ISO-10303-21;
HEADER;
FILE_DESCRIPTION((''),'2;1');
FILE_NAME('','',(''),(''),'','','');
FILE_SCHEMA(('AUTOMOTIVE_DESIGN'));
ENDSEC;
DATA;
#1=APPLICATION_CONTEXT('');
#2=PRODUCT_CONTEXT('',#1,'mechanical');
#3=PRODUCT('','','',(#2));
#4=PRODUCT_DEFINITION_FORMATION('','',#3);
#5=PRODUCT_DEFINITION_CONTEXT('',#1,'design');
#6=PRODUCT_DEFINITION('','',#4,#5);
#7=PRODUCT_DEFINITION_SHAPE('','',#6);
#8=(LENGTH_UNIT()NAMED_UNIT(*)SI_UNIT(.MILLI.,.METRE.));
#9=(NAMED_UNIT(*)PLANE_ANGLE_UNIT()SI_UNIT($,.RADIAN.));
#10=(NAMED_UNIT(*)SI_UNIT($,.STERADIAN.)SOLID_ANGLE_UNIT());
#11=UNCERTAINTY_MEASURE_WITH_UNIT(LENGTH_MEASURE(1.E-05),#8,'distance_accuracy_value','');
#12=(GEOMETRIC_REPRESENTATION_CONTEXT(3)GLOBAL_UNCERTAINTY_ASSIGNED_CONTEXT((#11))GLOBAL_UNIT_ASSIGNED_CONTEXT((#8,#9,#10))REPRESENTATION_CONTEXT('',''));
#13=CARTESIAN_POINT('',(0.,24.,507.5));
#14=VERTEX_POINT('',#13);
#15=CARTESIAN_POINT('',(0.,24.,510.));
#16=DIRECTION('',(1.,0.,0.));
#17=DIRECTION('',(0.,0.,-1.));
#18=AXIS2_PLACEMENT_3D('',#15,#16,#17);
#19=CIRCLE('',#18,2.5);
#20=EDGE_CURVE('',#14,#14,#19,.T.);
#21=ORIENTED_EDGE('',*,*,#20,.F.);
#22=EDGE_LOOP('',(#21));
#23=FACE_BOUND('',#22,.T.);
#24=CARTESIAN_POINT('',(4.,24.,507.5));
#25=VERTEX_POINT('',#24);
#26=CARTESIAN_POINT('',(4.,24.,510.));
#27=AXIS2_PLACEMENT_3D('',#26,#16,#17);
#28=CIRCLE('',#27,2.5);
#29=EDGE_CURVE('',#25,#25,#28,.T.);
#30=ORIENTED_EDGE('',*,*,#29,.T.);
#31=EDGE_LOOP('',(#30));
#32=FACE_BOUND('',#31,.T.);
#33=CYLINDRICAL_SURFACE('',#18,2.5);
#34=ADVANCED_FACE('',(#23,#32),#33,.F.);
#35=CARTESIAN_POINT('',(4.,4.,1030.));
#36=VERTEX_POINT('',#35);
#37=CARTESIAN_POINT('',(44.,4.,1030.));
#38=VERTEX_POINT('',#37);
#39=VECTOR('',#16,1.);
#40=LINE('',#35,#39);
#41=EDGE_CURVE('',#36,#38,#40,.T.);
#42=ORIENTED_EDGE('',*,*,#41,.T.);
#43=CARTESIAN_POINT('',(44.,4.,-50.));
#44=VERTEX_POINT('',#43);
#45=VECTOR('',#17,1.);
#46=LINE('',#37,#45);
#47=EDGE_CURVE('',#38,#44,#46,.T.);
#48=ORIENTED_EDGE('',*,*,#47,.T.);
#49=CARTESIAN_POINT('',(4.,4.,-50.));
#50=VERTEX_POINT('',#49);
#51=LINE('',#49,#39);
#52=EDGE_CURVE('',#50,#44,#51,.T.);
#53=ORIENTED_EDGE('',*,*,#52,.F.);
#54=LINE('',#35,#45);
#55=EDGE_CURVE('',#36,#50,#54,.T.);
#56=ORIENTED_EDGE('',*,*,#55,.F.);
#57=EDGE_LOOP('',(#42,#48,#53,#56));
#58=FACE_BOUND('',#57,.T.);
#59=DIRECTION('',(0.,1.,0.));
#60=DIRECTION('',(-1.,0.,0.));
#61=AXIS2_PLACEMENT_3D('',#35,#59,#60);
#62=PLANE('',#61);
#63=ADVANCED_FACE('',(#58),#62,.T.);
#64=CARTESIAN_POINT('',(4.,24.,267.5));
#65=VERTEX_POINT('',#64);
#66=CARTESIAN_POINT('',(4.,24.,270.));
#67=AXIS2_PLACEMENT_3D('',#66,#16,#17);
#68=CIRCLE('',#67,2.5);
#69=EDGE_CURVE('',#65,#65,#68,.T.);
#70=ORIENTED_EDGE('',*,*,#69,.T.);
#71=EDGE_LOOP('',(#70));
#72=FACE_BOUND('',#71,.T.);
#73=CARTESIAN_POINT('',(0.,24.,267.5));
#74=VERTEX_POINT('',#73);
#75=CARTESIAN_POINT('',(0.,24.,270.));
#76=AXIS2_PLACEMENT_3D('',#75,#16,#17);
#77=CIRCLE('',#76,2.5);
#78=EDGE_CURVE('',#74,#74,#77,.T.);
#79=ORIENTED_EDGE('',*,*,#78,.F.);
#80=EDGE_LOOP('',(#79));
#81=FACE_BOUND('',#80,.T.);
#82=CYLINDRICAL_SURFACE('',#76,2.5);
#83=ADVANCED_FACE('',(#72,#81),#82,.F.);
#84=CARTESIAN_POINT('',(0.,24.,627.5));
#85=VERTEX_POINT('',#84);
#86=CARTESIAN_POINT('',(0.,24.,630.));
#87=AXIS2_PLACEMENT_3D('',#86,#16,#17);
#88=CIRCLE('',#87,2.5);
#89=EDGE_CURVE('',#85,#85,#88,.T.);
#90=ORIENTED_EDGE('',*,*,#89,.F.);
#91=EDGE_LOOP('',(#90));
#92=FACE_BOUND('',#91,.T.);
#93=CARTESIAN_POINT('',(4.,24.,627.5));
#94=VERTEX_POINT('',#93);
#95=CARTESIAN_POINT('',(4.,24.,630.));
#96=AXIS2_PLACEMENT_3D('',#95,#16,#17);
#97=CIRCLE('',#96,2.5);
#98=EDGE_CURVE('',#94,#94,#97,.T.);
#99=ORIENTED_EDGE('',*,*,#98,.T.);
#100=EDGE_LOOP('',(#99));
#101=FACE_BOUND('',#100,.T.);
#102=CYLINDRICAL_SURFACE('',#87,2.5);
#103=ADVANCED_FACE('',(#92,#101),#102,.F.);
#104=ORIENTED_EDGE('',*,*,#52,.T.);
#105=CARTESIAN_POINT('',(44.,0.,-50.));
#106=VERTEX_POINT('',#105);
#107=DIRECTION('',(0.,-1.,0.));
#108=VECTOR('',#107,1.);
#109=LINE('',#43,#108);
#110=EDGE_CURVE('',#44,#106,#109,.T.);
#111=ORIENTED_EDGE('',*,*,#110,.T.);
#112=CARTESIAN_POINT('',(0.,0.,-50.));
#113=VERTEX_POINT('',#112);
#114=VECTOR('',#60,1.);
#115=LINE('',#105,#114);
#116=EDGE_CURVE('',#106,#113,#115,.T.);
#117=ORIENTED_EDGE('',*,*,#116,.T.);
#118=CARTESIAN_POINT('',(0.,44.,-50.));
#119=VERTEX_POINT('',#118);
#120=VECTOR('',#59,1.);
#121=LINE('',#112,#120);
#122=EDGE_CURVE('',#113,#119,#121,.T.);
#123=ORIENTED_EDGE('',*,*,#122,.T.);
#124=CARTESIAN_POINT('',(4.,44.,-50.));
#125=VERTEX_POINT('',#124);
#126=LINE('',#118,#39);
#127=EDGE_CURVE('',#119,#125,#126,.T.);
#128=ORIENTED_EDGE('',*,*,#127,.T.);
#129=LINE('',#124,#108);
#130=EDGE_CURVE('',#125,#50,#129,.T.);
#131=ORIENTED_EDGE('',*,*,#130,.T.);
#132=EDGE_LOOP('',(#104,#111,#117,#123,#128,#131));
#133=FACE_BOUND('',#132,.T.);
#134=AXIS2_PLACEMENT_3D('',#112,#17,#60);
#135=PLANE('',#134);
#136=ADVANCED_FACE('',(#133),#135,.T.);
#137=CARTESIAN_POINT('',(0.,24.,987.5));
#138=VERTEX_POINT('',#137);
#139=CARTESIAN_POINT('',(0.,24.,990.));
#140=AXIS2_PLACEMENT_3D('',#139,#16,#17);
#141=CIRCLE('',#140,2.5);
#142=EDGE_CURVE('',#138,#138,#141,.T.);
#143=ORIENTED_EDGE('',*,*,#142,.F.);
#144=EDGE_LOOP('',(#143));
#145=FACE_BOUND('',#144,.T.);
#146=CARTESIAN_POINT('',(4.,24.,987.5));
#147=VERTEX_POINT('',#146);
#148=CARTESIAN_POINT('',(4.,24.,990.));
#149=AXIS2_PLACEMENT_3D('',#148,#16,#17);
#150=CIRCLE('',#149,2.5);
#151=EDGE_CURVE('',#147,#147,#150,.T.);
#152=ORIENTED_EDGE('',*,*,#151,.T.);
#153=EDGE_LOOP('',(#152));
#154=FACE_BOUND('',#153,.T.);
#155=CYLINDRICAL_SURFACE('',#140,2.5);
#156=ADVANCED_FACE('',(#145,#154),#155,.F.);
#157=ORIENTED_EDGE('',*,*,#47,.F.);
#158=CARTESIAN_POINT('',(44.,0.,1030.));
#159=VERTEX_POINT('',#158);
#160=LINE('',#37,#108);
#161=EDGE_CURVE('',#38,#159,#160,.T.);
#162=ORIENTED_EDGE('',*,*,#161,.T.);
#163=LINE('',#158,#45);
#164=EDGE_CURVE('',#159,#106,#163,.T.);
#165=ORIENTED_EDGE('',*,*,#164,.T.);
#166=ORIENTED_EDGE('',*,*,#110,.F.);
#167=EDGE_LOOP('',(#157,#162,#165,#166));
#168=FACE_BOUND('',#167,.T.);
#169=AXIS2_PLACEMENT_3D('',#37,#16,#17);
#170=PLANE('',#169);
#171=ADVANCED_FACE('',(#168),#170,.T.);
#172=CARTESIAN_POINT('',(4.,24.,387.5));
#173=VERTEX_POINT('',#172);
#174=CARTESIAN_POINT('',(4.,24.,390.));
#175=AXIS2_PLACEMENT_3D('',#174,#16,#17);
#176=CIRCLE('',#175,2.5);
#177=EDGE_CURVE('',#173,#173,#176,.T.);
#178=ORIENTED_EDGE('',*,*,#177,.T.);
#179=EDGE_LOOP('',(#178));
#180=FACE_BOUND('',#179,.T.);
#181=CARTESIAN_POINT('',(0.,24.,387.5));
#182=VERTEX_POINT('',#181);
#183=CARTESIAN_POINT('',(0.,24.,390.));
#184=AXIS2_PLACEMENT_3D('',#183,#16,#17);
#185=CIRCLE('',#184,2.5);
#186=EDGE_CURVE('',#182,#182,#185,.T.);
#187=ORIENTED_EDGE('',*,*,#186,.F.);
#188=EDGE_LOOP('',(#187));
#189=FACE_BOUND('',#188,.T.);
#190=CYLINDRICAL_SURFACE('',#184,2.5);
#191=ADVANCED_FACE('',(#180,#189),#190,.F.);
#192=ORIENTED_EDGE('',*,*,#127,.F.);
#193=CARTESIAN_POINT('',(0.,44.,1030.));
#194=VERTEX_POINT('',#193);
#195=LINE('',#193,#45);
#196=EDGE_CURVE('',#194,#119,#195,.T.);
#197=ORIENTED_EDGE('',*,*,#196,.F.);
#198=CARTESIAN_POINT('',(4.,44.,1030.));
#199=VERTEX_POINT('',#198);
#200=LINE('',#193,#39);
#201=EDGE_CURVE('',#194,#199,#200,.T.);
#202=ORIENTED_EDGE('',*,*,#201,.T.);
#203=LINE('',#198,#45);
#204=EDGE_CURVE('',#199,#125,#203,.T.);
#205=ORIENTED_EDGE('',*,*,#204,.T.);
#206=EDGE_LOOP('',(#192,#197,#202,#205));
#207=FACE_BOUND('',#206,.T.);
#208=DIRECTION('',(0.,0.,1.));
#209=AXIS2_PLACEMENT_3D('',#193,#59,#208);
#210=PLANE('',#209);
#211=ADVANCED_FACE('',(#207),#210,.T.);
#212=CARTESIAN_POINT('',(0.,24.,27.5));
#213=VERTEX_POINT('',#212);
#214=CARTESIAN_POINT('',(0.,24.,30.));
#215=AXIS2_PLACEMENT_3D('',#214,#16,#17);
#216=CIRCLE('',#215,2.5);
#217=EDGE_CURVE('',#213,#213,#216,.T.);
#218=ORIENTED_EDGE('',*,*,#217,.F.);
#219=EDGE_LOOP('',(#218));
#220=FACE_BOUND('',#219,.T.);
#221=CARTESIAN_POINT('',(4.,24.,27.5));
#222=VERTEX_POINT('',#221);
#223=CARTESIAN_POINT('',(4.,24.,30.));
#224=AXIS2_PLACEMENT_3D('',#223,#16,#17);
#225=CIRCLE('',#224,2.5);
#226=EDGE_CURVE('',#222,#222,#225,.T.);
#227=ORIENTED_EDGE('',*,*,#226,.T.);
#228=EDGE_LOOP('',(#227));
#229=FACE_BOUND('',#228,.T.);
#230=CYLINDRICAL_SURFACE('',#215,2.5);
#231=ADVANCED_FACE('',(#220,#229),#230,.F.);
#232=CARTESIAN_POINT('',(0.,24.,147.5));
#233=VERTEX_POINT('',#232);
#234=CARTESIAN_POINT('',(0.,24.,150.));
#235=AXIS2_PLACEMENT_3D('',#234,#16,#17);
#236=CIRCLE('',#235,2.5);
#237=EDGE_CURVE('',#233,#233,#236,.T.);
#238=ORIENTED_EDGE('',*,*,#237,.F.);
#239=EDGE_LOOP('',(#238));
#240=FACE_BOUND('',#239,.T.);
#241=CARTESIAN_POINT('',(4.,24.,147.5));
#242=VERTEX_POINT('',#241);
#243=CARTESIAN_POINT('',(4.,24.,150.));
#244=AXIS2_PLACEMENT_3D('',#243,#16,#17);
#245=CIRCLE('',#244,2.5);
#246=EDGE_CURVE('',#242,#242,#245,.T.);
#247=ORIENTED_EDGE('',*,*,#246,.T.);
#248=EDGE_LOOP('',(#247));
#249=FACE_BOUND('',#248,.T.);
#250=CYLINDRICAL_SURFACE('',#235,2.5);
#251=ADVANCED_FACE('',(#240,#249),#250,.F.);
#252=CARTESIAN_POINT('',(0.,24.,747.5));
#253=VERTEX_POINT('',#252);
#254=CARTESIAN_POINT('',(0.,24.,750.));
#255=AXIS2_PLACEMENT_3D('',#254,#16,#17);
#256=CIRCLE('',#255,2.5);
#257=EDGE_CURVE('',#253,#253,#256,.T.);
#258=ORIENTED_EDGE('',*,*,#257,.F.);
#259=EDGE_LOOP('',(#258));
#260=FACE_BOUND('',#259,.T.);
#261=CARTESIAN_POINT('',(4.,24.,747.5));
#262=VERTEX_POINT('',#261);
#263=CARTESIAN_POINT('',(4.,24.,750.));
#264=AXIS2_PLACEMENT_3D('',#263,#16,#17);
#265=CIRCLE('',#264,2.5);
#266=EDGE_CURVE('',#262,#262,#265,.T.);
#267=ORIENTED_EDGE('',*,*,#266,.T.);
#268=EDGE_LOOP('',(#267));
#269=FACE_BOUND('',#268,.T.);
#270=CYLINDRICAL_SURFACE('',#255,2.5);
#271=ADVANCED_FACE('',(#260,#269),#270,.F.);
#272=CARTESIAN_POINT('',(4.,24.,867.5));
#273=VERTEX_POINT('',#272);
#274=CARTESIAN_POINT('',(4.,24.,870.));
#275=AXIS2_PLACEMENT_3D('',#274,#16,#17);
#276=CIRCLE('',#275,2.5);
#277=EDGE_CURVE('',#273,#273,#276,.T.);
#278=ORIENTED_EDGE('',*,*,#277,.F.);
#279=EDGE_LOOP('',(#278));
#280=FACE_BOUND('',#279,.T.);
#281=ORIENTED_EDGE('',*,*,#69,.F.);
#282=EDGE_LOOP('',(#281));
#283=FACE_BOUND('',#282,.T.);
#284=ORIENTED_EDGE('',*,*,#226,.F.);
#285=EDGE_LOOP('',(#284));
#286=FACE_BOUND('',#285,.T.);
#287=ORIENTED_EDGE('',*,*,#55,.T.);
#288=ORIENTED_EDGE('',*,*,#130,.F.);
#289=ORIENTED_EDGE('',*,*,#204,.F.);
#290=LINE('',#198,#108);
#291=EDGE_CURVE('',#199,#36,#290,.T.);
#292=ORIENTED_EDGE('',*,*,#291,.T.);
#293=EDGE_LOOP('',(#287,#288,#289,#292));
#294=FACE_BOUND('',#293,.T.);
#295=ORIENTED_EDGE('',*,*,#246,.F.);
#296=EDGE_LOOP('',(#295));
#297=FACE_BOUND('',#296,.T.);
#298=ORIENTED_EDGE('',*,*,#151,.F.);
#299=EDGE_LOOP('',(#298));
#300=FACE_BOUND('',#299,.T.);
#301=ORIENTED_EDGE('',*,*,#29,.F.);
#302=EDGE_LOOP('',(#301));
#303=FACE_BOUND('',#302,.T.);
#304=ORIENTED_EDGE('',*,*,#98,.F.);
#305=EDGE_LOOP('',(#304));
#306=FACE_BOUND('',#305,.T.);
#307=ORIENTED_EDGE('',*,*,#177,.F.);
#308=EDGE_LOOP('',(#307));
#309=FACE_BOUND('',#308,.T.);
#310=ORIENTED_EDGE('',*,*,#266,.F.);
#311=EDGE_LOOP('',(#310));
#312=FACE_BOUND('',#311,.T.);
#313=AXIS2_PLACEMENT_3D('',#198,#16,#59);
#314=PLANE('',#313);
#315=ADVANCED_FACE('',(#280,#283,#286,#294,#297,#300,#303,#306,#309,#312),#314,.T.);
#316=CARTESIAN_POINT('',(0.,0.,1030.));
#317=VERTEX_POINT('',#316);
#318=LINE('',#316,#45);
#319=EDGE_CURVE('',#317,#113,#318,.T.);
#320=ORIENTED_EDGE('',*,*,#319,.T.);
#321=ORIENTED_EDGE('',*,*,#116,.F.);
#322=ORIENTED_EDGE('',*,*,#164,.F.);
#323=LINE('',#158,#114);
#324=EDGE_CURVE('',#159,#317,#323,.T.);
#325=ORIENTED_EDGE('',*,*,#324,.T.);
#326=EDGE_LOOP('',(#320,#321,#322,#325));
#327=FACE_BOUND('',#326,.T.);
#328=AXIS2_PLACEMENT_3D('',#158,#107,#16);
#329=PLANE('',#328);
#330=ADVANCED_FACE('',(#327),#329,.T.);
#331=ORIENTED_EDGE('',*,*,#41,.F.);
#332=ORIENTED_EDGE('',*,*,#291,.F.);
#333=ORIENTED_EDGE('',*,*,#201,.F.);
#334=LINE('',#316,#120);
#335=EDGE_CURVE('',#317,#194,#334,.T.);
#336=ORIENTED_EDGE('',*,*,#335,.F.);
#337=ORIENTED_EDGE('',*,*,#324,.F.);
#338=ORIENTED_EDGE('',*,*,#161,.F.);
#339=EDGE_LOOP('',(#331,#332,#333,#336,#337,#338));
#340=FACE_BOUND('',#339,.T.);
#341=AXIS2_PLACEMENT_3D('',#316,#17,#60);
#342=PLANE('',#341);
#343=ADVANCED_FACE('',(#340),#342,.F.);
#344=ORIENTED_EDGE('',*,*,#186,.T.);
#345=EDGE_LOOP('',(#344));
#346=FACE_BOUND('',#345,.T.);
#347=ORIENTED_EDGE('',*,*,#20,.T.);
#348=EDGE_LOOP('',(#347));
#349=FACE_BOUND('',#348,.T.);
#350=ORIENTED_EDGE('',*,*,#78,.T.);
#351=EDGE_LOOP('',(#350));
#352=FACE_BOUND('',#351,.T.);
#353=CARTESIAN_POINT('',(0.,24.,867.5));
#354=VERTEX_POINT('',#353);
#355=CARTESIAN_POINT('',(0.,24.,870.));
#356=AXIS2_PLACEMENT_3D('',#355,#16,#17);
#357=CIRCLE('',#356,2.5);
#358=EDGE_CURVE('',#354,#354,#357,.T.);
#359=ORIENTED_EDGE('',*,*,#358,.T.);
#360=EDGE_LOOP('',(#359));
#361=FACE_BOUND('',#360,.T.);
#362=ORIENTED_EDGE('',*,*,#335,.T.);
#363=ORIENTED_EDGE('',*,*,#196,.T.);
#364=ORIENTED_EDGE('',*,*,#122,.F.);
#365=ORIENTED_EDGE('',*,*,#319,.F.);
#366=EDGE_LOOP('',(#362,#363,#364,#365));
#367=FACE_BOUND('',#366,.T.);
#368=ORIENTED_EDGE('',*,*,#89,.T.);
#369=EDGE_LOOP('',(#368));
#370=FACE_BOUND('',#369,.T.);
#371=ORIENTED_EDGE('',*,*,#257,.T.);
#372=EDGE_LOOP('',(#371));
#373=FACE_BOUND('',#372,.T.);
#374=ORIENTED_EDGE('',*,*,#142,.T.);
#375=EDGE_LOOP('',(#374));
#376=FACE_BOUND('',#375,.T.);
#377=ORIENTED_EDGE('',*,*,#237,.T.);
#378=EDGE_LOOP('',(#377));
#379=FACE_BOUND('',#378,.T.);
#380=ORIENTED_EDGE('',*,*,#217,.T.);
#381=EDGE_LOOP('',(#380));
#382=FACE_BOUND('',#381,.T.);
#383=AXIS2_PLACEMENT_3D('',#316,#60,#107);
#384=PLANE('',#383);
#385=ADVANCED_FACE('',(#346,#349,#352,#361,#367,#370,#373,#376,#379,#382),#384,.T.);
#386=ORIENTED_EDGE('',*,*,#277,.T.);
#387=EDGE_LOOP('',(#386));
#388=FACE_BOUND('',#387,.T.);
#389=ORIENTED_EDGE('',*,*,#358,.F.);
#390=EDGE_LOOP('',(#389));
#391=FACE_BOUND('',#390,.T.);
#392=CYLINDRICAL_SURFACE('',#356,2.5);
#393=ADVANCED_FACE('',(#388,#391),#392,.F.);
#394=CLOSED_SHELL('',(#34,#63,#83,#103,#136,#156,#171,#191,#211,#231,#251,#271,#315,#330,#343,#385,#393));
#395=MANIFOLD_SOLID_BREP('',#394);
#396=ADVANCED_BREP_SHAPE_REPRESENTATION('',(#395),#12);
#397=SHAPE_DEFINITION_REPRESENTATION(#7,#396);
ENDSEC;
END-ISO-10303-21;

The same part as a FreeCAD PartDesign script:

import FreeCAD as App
import Part
import Sketcher

V = App.Vector
Q = App.Units.Quantity


def add_polygon(sketch, points):
    """Adds a closed chain of lines whose ends are joined by coincident constraints."""
    first, n = sketch.GeometryCount, len(points)
    for a, b in zip(points, points[1:] + points[:1]):
        sketch.addGeometry(Part.LineSegment(App.Vector(*a, 0), App.Vector(*b, 0)), False)
    for i in range(n):
        sketch.addConstraint(Sketcher.Constraint("Coincident", first + i, 2, first + (i + 1) % n, 1))

doc = App.newDocument("Part")
body = doc.addObject("PartDesign::Body", "Body")

# Sketch on XY plane
sketch1 = doc.addObject("Sketcher::SketchObject", "Sketch")
body.addObject(sketch1)
sketch1.AttachmentSupport = (doc.XY_Plane, [""])
sketch1.MapMode = "FlatFace"
sketch1.AttachmentOffset = App.Placement(V(0, 0, -50), App.Rotation())
add_polygon(sketch1, [(0, 44), (4, 44), (4, 4), (44, 4), (44, 0), (0, 0)])  # lines 0-5
sketch1.addConstraint(Sketcher.Constraint("Horizontal", 0))
sketch1.addConstraint(Sketcher.Constraint("Vertical", 1))
sketch1.addConstraint(Sketcher.Constraint("Horizontal", 2))
sketch1.addConstraint(Sketcher.Constraint("Vertical", 3))
sketch1.addConstraint(Sketcher.Constraint("Horizontal", 4))
sketch1.addConstraint(Sketcher.Constraint("Vertical", 5))
sketch1.addConstraint(Sketcher.Constraint("Coincident", 4, 2, -1, 1))
sketch1.addConstraint(Sketcher.Constraint("Equal", 2, 1))
sketch1.addConstraint(Sketcher.Constraint("Equal", 0, 3))
sketch1.addConstraint(Sketcher.Constraint("DistanceX", 0, 1, 0, 2, Q("4 mm")))
sketch1.addConstraint(Sketcher.Constraint("DistanceX", 2, 1, 2, 2, Q("40 mm")))
pad1 = doc.addObject("PartDesign::Pad", "Pad")
body.addObject(pad1)
pad1.Profile = sketch1
pad1.Length = 1080

# Sketch on YZ plane
sketch2 = doc.addObject("Sketcher::SketchObject", "Sketch001")
body.addObject(sketch2)
sketch2.AttachmentSupport = (doc.YZ_Plane, [""])
sketch2.MapMode = "FlatFace"
sketch2.AttachmentOffset = App.Placement(V(0, 0, 4), App.Rotation())
sketch2.addGeometry(Part.Circle(V(24, 990, 0), V(0, 0, 1), 2.5), False)
sketch2.addGeometry(Part.Circle(V(24, 870, 0), V(0, 0, 1), 2.5), False)
sketch2.addGeometry(Part.Circle(V(24, 750, 0), V(0, 0, 1), 2.5), False)
sketch2.addGeometry(Part.Circle(V(24, 630, 0), V(0, 0, 1), 2.5), False)
sketch2.addGeometry(Part.Circle(V(24, 510, 0), V(0, 0, 1), 2.5), False)
sketch2.addGeometry(Part.Circle(V(24, 390, 0), V(0, 0, 1), 2.5), False)
sketch2.addGeometry(Part.Circle(V(24, 270, 0), V(0, 0, 1), 2.5), False)
sketch2.addGeometry(Part.Circle(V(24, 150, 0), V(0, 0, 1), 2.5), False)
sketch2.addGeometry(Part.Circle(V(24, 30, 0), V(0, 0, 1), 2.5), False)
sketch2.addConstraint(Sketcher.Constraint("Equal", 0, 1))
sketch2.addConstraint(Sketcher.Constraint("Equal", 1, 2))
sketch2.addConstraint(Sketcher.Constraint("Equal", 2, 3))
sketch2.addConstraint(Sketcher.Constraint("Equal", 3, 4))
sketch2.addConstraint(Sketcher.Constraint("Equal", 4, 5))
sketch2.addConstraint(Sketcher.Constraint("Equal", 5, 6))
sketch2.addConstraint(Sketcher.Constraint("Equal", 6, 7))
sketch2.addConstraint(Sketcher.Constraint("Equal", 7, 8))
sketch2.addConstraint(Sketcher.Constraint("Vertical", 0, 3, 1, 3))
sketch2.addConstraint(Sketcher.Constraint("Vertical", 1, 3, 2, 3))
sketch2.addConstraint(Sketcher.Constraint("Vertical", 2, 3, 3, 3))
sketch2.addConstraint(Sketcher.Constraint("Vertical", 3, 3, 4, 3))
sketch2.addConstraint(Sketcher.Constraint("Vertical", 4, 3, 5, 3))
sketch2.addConstraint(Sketcher.Constraint("Vertical", 5, 3, 6, 3))
sketch2.addConstraint(Sketcher.Constraint("Vertical", 6, 3, 7, 3))
sketch2.addConstraint(Sketcher.Constraint("Vertical", 7, 3, 8, 3))
sketch2.addConstraint(Sketcher.Constraint("Diameter", 0, Q("5 mm")))
sketch2.addConstraint(Sketcher.Constraint("DistanceX", -1, 1, 0, 3, Q("24 mm")))
sketch2.addConstraint(Sketcher.Constraint("DistanceY", -1, 1, 0, 3, Q("990 mm")))
sketch2.addConstraint(Sketcher.Constraint("DistanceY", -1, 1, 1, 3, Q("870 mm")))
sketch2.addConstraint(Sketcher.Constraint("DistanceY", -1, 1, 2, 3, Q("750 mm")))
sketch2.addConstraint(Sketcher.Constraint("DistanceY", -1, 1, 3, 3, Q("630 mm")))
sketch2.addConstraint(Sketcher.Constraint("DistanceY", -1, 1, 4, 3, Q("510 mm")))
sketch2.addConstraint(Sketcher.Constraint("DistanceY", -1, 1, 5, 3, Q("390 mm")))
sketch2.addConstraint(Sketcher.Constraint("DistanceY", -1, 1, 6, 3, Q("270 mm")))
sketch2.addConstraint(Sketcher.Constraint("DistanceY", -1, 1, 7, 3, Q("150 mm")))
sketch2.addConstraint(Sketcher.Constraint("DistanceY", -1, 1, 8, 3, Q("30 mm")))
pocket1 = doc.addObject("PartDesign::Pocket", "Pocket")
body.addObject(pocket1)
pocket1.Profile = sketch2
pocket1.Type = "ThroughAll"

doc.recompute()
